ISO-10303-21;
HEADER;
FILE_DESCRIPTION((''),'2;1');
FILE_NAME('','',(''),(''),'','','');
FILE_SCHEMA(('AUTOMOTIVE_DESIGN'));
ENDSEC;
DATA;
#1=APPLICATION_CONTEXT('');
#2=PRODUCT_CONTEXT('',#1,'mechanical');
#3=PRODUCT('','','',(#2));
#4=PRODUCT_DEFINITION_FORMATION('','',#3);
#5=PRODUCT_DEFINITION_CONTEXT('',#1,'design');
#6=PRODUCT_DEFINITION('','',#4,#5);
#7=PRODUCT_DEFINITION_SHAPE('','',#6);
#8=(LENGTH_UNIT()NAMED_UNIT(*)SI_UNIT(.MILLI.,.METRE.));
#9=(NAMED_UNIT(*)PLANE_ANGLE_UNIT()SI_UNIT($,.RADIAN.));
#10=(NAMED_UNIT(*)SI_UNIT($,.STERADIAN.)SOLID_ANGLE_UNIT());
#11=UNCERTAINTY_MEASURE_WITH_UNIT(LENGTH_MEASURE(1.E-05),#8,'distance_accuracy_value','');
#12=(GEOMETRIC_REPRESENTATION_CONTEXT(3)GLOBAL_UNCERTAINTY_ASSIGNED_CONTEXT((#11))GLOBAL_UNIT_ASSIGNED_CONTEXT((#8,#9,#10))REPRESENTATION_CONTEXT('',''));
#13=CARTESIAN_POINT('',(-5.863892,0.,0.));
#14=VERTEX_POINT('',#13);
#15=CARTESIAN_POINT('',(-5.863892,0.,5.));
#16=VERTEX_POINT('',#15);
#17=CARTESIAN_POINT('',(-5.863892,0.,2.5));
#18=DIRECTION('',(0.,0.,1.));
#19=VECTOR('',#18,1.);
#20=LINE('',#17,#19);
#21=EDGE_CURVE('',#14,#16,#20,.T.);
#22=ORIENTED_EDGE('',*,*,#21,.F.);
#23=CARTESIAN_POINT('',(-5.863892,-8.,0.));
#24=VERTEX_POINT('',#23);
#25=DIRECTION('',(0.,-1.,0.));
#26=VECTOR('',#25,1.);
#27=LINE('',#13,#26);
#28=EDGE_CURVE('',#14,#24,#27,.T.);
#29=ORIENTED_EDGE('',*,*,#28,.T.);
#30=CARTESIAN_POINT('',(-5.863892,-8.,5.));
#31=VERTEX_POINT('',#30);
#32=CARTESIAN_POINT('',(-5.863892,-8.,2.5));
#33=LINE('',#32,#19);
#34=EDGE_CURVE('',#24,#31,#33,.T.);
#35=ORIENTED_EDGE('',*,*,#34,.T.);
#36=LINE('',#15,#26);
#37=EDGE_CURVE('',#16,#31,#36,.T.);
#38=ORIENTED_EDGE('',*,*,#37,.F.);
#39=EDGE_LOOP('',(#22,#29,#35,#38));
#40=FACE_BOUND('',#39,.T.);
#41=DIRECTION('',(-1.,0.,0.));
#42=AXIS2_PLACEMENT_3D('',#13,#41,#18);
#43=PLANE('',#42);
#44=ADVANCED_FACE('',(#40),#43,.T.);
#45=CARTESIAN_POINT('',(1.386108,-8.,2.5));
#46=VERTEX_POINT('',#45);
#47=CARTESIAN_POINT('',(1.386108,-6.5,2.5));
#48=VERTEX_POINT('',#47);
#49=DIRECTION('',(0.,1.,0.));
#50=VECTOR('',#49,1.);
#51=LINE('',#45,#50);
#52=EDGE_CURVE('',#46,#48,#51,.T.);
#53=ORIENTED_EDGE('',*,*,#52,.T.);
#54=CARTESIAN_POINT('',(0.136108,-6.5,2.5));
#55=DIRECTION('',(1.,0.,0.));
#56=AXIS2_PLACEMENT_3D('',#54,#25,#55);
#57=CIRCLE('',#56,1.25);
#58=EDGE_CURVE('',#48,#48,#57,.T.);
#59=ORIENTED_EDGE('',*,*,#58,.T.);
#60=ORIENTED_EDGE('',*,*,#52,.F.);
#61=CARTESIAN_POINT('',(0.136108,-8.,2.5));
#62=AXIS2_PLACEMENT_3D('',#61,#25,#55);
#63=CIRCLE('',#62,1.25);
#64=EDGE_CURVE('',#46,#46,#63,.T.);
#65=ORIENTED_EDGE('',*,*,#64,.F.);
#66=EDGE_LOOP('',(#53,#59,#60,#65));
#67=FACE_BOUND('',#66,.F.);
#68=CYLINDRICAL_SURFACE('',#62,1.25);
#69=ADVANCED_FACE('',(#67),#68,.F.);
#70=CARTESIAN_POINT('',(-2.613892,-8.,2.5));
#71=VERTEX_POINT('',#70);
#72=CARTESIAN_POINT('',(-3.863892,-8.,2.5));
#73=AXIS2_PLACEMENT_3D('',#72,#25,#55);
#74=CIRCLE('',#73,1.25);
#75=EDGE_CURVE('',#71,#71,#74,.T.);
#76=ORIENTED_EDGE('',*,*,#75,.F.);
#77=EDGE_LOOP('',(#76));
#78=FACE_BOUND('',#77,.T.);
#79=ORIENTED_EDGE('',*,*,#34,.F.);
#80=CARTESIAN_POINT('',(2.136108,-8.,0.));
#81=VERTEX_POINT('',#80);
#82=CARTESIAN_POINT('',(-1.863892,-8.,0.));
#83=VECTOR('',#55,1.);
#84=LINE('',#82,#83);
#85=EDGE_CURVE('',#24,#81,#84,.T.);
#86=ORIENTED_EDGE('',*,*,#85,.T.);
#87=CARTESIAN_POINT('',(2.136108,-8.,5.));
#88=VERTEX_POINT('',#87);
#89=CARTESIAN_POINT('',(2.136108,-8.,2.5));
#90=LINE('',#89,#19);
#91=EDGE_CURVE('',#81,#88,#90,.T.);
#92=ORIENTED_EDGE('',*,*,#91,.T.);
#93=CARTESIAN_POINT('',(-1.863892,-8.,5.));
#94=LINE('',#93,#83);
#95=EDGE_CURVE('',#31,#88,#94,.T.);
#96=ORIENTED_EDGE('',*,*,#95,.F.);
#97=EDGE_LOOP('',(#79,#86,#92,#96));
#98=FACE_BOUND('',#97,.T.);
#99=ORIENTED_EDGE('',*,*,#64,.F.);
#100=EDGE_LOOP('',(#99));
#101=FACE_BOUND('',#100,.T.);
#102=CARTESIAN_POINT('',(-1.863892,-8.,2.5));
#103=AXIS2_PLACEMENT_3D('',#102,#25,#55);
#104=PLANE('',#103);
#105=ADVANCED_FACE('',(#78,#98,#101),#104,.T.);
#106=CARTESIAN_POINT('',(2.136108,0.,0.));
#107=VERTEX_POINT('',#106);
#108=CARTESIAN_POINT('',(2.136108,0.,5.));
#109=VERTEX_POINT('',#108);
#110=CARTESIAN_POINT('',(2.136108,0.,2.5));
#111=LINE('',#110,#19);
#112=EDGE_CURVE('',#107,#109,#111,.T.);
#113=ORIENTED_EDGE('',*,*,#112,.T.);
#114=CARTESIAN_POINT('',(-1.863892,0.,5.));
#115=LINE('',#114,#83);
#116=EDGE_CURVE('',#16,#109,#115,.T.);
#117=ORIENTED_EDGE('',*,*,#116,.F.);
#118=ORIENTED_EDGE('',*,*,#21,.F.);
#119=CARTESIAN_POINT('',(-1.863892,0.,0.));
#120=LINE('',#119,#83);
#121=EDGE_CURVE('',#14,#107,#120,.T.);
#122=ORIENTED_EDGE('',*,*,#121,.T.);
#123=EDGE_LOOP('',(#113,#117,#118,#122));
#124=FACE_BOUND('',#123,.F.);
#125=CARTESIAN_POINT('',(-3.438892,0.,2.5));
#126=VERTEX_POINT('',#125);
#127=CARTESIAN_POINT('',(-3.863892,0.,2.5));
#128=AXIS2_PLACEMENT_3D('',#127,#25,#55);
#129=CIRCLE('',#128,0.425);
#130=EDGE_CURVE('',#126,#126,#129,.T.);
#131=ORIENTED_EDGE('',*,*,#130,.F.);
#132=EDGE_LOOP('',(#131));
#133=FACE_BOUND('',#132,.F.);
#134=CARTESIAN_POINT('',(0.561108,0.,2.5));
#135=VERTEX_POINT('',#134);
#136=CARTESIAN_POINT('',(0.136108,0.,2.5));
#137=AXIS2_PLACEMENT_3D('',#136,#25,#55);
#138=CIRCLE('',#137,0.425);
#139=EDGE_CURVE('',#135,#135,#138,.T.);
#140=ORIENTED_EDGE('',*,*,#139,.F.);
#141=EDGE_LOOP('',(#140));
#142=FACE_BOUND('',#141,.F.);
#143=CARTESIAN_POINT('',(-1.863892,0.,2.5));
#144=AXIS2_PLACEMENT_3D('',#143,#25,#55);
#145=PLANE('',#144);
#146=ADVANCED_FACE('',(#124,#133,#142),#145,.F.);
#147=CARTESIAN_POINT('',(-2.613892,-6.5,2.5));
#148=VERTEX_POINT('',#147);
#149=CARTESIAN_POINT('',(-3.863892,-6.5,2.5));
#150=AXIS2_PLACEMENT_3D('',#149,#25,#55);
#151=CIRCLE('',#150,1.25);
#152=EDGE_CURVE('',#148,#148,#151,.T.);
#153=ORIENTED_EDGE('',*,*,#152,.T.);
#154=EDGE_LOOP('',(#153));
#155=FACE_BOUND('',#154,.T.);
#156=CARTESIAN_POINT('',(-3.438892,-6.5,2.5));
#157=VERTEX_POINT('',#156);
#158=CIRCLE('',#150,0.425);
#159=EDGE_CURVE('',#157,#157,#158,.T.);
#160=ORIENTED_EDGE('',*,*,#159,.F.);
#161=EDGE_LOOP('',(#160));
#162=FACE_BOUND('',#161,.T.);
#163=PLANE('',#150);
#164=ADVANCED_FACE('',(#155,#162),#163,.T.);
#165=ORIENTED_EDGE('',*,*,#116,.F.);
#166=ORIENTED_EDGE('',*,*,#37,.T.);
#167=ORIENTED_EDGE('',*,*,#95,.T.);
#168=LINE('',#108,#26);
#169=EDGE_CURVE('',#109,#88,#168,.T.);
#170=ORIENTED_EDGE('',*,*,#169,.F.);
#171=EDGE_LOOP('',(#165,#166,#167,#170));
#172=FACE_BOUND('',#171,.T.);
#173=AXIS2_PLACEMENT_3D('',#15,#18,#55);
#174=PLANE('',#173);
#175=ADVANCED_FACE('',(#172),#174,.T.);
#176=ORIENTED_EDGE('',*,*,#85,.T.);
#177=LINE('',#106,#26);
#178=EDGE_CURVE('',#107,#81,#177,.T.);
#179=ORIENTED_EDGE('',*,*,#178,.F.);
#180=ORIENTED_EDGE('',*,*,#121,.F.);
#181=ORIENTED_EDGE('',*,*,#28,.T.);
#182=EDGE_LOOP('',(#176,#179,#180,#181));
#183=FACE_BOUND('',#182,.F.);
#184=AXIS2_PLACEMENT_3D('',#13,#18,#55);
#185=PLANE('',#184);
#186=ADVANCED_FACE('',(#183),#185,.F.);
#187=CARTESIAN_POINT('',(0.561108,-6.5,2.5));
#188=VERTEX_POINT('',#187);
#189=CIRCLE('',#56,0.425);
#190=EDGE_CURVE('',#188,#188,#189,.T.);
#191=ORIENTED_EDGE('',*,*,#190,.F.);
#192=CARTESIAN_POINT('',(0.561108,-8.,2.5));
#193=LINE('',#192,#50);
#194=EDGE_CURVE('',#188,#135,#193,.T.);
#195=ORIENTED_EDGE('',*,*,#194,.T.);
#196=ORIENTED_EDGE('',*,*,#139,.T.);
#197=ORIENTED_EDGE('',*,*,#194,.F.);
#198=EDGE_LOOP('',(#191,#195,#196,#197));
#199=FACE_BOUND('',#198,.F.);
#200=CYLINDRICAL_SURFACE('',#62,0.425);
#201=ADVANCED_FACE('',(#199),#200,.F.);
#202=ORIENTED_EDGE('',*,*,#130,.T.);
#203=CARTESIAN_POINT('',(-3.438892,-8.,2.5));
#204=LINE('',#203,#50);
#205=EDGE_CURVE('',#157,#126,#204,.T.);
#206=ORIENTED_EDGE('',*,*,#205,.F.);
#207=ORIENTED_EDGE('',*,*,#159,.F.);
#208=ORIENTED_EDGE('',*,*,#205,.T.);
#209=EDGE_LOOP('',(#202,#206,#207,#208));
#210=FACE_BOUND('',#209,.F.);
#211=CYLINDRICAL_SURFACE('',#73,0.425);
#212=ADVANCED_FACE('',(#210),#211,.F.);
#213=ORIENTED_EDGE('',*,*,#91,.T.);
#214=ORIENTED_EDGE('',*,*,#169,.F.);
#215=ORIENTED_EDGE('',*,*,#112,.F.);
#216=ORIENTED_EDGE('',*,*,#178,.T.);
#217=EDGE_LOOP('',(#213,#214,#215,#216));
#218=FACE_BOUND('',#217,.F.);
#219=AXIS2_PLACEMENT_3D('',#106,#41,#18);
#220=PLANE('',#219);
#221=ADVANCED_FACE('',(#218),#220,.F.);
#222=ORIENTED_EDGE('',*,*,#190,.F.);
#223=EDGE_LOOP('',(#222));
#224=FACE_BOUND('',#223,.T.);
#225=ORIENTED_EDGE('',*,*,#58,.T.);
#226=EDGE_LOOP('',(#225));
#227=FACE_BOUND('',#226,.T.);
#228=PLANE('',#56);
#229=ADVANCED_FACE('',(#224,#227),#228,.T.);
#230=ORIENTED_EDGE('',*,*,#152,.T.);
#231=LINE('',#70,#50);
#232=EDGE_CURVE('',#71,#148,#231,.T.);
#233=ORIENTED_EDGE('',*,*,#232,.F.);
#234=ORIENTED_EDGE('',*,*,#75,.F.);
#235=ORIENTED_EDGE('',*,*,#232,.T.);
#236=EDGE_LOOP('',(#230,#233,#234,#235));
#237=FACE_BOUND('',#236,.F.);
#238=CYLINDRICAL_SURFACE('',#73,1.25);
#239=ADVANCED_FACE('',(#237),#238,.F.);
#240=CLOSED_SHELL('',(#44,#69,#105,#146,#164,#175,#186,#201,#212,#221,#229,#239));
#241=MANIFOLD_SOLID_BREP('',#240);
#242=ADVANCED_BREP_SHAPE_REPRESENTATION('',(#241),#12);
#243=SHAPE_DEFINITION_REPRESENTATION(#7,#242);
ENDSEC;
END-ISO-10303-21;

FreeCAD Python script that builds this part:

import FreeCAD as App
import Part
import Sketcher
from FreeCAD import Vector


def add_polygon(sketch, points):
    """Adds a closed chain of lines whose ends are joined by coincident constraints."""
    first, n = sketch.GeometryCount, len(points)
    for a, b in zip(points, points[1:] + points[:1]):
        sketch.addGeometry(Part.LineSegment(App.Vector(*a, 0), App.Vector(*b, 0)), False)
    for i in range(n):
        sketch.addConstraint(Sketcher.Constraint("Coincident", first + i, 2, first + (i + 1) % n, 1))

doc = App.newDocument("Part")
body = doc.addObject("PartDesign::Body", "Body")

# Sketch on XZ plane
sketch1 = body.newObject("Sketcher::SketchObject", "Sketch")
sketch1.AttachmentSupport = (doc.getObject("XZ_Plane"), [""])
sketch1.MapMode = "FlatFace"
add_polygon(sketch1, [(-6, 5), (-6, 0), (2, 0), (2, 5)])  # lines 0-3
sketch1.addConstraint([
    Sketcher.Constraint("Vertical", 0),
    Sketcher.Constraint("Horizontal", 1),
    Sketcher.Constraint("Vertical", 2),
    Sketcher.Constraint("Horizontal", 3),
    Sketcher.Constraint("PointOnObject", 0, 2, -1),
    Sketcher.Constraint("DistanceX", 1, 1, 1, 2, 8.0),
    Sketcher.Constraint("DistanceY", 0, 2, 0, 1, 5.0),
    Sketcher.Constraint("DistanceX", -1, 1, 1, 2, 2.136108),
])
pad1 = body.newObject("PartDesign::Pad", "Pad")
pad1.Profile = sketch1
pad1.Length = 8

# Sketch on XZ plane
sketch2 = body.newObject("Sketcher::SketchObject", "Sketch001")
sketch2.AttachmentSupport = (doc.getObject("XZ_Plane"), [""])
sketch2.MapMode = "FlatFace"
sketch2.AttachmentOffset = App.Placement(Vector(0, 0, 8), App.Rotation())
sketch2.addGeometry(Part.Circle(Vector(-3.9, 2.5, 0), Vector(0, 0, 1), 1.2), False)
sketch2.addConstraint([
    Sketcher.Constraint("Diameter", 0, 2.5),
    Sketcher.Constraint("DistanceY", -1, 1, 0, 3, 2.5),
    Sketcher.Constraint("DistanceX", 0, 3, -1, 1, 3.863892),
])
pocket1 = body.newObject("PartDesign::Pocket", "Pocket")
pocket1.Profile = sketch2
pocket1.Length = 1.5

# Sketch on XZ plane
sketch3 = body.newObject("Sketcher::SketchObject", "Sketch002")
sketch3.AttachmentSupport = (doc.getObject("XZ_Plane"), [""])
sketch3.MapMode = "FlatFace"
sketch3.AttachmentOffset = App.Placement(Vector(0, 0, 8), App.Rotation())
sketch3.addGeometry(Part.Circle(Vector(0.1, 2.5, 0), Vector(0, 0, 1), 1.2), False)
sketch3.addConstraint([
    Sketcher.Constraint("Diameter", 0, 2.5),
    Sketcher.Constraint("DistanceY", -1, 1, 0, 3, 2.5),
    Sketcher.Constraint("DistanceX", -1, 1, 0, 3, 0.136108),
])
pocket2 = body.newObject("PartDesign::Pocket", "Pocket001")
pocket2.Profile = sketch3
pocket2.Length = 1.5

# Sketch on XZ plane
sketch4 = body.newObject("Sketcher::SketchObject", "Sketch003")
sketch4.AttachmentSupport = (doc.getObject("XZ_Plane"), [""])
sketch4.MapMode = "FlatFace"
sketch4.AttachmentOffset = App.Placement(Vector(0, 0, 8), App.Rotation())
sketch4.addGeometry(Part.Circle(Vector(0.14, 2.5, 0), Vector(0, 0, 1), 0.42), False)
sketch4.addConstraint([
    Sketcher.Constraint("Diameter", 0, 0.85),
    Sketcher.Constraint("DistanceY", -1, 1, 0, 3, 2.5),
    Sketcher.Constraint("DistanceX", -1, 1, 0, 3, 0.136108),
])
pocket3 = body.newObject("PartDesign::Pocket", "Pocket002")
pocket3.Profile = sketch4
pocket3.Length = 25

# Sketch on XZ plane
sketch5 = body.newObject("Sketcher::SketchObject", "Sketch004")
sketch5.AttachmentSupport = (doc.getObject("XZ_Plane"), [""])
sketch5.MapMode = "FlatFace"
sketch5.AttachmentOffset = App.Placement(Vector(0, 0, 8), App.Rotation())
sketch5.addGeometry([
    Part.Circle(Vector(-3.86, 2.5, 0), Vector(0, 0, 1), 0.42),
    Part.Circle(Vector(0.14, 2.5, 0), Vector(0, 0, 1), 0.42),
], False)
sketch5.addConstraint([
    Sketcher.Constraint("Equal", 0, 1),
    Sketcher.Constraint("Horizontal", 0, 3, 1, 3),
    Sketcher.Constraint("Diameter", 0, 0.85),
    Sketcher.Constraint("DistanceX", 0, 3, 1, 3, 4.0),
    Sketcher.Constraint("DistanceY", -1, 1, 0, 3, 2.5),
    Sketcher.Constraint("DistanceX", 0, 3, -1, 1, 3.863892),
])
pocket4 = body.newObject("PartDesign::Pocket", "Pocket003")
pocket4.Profile = sketch5
pocket4.Length = 25

doc.recompute()
